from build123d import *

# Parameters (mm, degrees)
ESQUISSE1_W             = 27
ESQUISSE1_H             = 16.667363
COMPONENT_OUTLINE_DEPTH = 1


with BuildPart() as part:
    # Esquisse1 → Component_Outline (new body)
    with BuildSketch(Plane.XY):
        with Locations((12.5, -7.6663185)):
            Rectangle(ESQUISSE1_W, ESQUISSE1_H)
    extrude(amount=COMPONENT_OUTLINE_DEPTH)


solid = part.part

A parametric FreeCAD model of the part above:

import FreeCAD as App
import Part
import Sketcher


def add_polygon(sketch, points):
    """Adds a closed chain of lines whose ends are joined by coincident constraints."""
    first, n = sketch.GeometryCount, len(points)
    for a, b in zip(points, points[1:] + points[:1]):
        sketch.addGeometry(Part.LineSegment(App.Vector(*a, 0), App.Vector(*b, 0)), False)
    for i in range(n):
        sketch.addConstraint(Sketcher.Constraint("Coincident", first + i, 2, first + (i + 1) % n, 1))

doc = App.newDocument("Part")
body = doc.addObject("PartDesign::Body", "Body")

# Sketch on XY plane
sketch1 = doc.addObject("Sketcher::SketchObject", "Sketch")
body.addObject(sketch1)
sketch1.AttachmentSupport = (doc.XY_Plane, [""])
sketch1.MapMode = "FlatFace"
add_polygon(sketch1, [(-1, 1), (-1, -16), (26, -16), (26, 1)])  # lines 0-3
sketch1.addConstraint(Sketcher.Constraint("Vertical", 0))
sketch1.addConstraint(Sketcher.Constraint("Horizontal", 1))
sketch1.addConstraint(Sketcher.Constraint("Vertical", 2))
sketch1.addConstraint(Sketcher.Constraint("Horizontal", 3))
sketch1.addConstraint(Sketcher.Constraint("DistanceX", 1, 1, 1, 2, 27.0))
sketch1.addConstraint(Sketcher.Constraint("DistanceX", 0, 2, -1, 1, 1.0))
sketch1.addConstraint(Sketcher.Constraint("DistanceY", 0, 2, -1, 1, 16.0))
sketch1.addConstraint(Sketcher.Constraint("DistanceY", 0, 2, 0, 1, 16.667363))
pad1 = doc.addObject("PartDesign::Pad", "Pad")
body.addObject(pad1)
pad1.Profile = sketch1
pad1.Length = 1

doc.recompute()
